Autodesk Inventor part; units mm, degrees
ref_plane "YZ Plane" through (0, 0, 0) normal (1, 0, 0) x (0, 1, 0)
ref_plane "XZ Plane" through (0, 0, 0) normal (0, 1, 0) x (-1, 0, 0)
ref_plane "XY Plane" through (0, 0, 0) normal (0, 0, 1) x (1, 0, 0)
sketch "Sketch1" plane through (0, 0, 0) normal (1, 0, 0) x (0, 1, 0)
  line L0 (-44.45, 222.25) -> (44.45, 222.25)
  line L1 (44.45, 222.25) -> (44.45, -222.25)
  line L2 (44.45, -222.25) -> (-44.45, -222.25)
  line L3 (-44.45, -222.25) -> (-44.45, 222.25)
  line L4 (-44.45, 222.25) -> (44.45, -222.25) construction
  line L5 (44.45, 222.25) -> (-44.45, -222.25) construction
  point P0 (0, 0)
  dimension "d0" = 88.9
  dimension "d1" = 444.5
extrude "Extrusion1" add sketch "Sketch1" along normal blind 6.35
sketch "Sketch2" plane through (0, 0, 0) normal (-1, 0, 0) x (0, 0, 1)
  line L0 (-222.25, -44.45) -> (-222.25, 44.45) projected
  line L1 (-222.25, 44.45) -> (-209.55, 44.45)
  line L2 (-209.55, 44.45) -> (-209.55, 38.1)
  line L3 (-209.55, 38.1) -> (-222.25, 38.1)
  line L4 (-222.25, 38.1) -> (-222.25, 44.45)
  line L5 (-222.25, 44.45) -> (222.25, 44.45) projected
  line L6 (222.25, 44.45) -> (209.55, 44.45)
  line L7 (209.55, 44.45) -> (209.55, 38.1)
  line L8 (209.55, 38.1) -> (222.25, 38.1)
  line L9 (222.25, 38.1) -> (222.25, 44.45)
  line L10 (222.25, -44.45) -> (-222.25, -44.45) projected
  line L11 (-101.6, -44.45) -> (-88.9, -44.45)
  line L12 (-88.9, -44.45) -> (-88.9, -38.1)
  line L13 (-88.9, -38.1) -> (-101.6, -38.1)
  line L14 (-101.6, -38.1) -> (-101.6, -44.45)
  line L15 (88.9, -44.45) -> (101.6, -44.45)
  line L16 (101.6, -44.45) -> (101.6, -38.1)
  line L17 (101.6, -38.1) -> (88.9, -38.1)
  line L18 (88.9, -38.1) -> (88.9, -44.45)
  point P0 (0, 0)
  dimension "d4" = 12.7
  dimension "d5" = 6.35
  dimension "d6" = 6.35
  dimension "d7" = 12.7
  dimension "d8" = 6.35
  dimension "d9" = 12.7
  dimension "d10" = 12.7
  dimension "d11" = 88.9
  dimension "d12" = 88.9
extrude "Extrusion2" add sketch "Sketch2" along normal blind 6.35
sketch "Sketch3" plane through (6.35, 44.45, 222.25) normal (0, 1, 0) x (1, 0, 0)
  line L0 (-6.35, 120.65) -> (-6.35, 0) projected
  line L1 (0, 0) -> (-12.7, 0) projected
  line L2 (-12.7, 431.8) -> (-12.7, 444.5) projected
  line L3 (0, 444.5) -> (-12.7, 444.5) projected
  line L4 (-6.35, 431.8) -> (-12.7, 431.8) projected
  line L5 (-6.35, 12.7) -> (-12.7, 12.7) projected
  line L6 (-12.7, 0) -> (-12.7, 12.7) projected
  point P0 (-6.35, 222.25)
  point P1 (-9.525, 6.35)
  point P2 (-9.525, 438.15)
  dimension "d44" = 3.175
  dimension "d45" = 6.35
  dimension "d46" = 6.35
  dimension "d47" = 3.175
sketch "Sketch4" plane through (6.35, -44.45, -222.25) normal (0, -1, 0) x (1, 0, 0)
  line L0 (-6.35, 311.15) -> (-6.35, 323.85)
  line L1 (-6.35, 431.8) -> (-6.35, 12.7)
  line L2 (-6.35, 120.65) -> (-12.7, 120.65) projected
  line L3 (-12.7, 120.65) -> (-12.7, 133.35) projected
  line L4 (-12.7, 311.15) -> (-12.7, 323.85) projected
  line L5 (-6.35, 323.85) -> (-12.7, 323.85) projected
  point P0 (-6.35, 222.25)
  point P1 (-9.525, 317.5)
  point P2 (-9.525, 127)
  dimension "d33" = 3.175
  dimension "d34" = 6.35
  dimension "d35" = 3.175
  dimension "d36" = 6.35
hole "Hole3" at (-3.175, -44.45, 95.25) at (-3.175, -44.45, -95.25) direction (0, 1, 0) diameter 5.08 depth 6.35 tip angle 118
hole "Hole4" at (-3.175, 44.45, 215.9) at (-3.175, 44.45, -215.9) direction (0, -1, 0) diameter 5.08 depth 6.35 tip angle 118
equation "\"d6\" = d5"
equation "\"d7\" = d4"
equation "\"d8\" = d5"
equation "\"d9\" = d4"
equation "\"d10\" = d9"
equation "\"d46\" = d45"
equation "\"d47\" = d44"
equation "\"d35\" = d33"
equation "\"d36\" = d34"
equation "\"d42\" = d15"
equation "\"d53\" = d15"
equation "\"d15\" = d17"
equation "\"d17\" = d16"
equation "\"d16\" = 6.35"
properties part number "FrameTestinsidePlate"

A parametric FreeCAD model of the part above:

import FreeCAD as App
import Part
import Sketcher
Q = App.Units.Quantity

doc = App.newDocument("Part")
body = doc.addObject("PartDesign::Body", "Body")

# Sketch on YZ plane
sketch1 = body.newObject("Sketcher::SketchObject", "Sketch")
sketch1.AttachmentSupport = (doc.getObject("YZ_Plane"), [""])
sketch1.MapMode = "FlatFace"
sketch1.addGeometry([
    Part.LineSegment(App.Vector(44, 222, 0), App.Vector(-44, 222, 0)),
    Part.LineSegment(App.Vector(-44, 222, 0), App.Vector(-44, -222, 0)),
    Part.LineSegment(App.Vector(-44, -222, 0), App.Vector(44, -222, 0)),
    Part.LineSegment(App.Vector(44, -222, 0), App.Vector(44, 222, 0)),
], False)
sketch1.addConstraint([
    Sketcher.Constraint("Coincident", 0, 2, 1, 1),
    Sketcher.Constraint("Coincident", 1, 2, 2, 1),
    Sketcher.Constraint("Coincident", 2, 2, 3, 1),
    Sketcher.Constraint("Coincident", 3, 2, 0, 1),
    Sketcher.Constraint("Horizontal", 0),
    Sketcher.Constraint("Vertical", 1),
    Sketcher.Constraint("Horizontal", 2),
    Sketcher.Constraint("Vertical", 3),
    Sketcher.Constraint("Symmetric", 0, 2, 2, 2, -1, 1),
    Sketcher.Constraint("DistanceX", 0, 2, 0, 1, Q("3.5 in")),
    Sketcher.Constraint("DistanceY", 1, 2, 1, 1, Q("17.5 in")),
])
pad1 = body.newObject("PartDesign::Pad", "Pad")
pad1.Profile = sketch1
pad1.Length = Q("0.25 in")

# Sketch on YZ plane
sketch2 = body.newObject("Sketcher::SketchObject", "Sketch001")
sketch2.AttachmentSupport = (doc.getObject("YZ_Plane"), [""])
sketch2.MapMode = "FlatFace"
sketch2.addGeometry([
    Part.LineSegment(App.Vector(44, 222, 0), App.Vector(44, 210, 0)),  # 0
    Part.LineSegment(App.Vector(44, 210, 0), App.Vector(38, 210, 0)),  # 1
    Part.LineSegment(App.Vector(38, 210, 0), App.Vector(38, 222, 0)),  # 2
    Part.LineSegment(App.Vector(38, 222, 0), App.Vector(44, 222, 0)),  # 3
    Part.LineSegment(App.Vector(44, -222, 0), App.Vector(38, -222, 0)),  # 4
    Part.LineSegment(App.Vector(38, -222, 0), App.Vector(38, -210, 0)),  # 5
    Part.LineSegment(App.Vector(38, -210, 0), App.Vector(44, -210, 0)),  # 6
    Part.LineSegment(App.Vector(44, -210, 0), App.Vector(44, -222, 0)),  # 7
    Part.LineSegment(App.Vector(-38, 89, 0), App.Vector(-44, 89, 0)),  # 8
    Part.LineSegment(App.Vector(-44, 89, 0), App.Vector(-44, 102, 0)),  # 9
    Part.LineSegment(App.Vector(-44, 102, 0), App.Vector(-38, 102, 0)),  # 10
    Part.LineSegment(App.Vector(-38, 102, 0), App.Vector(-38, 89, 0)),  # 11
    Part.LineSegment(App.Vector(-38, -102, 0), App.Vector(-44, -102, 0)),  # 12
    Part.LineSegment(App.Vector(-44, -102, 0), App.Vector(-44, -89, 0)),  # 13
    Part.LineSegment(App.Vector(-44, -89, 0), App.Vector(-38, -89, 0)),  # 14
    Part.LineSegment(App.Vector(-38, -89, 0), App.Vector(-38, -102, 0)),  # 15
], False)
sketch2.addConstraint([
    Sketcher.Constraint("Coincident", 0, 2, 1, 1),
    Sketcher.Constraint("Coincident", 1, 2, 2, 1),
    Sketcher.Constraint("Coincident", 2, 2, 3, 1),
    Sketcher.Constraint("Coincident", 3, 2, 0, 1),
    Sketcher.Constraint("Coincident", 4, 2, 5, 1),
    Sketcher.Constraint("Coincident", 5, 2, 6, 1),
    Sketcher.Constraint("Coincident", 6, 2, 7, 1),
    Sketcher.Constraint("Coincident", 7, 2, 4, 1),
    Sketcher.Constraint("Coincident", 8, 2, 9, 1),
    Sketcher.Constraint("Coincident", 9, 2, 10, 1),
    Sketcher.Constraint("Coincident", 10, 2, 11, 1),
    Sketcher.Constraint("Coincident", 11, 2, 8, 1),
    Sketcher.Constraint("Coincident", 12, 2, 13, 1),
    Sketcher.Constraint("Coincident", 13, 2, 14, 1),
    Sketcher.Constraint("Coincident", 14, 2, 15, 1),
    Sketcher.Constraint("Coincident", 15, 2, 12, 1),
    Sketcher.Constraint("Vertical", 0),
    Sketcher.Constraint("Horizontal", 1),
    Sketcher.Constraint("Vertical", 2),
    Sketcher.Constraint("Horizontal", 3),
    Sketcher.Constraint("Horizontal", 4),
    Sketcher.Constraint("Vertical", 5),
    Sketcher.Constraint("Horizontal", 6),
    Sketcher.Constraint("Vertical", 7),
    Sketcher.Constraint("Horizontal", 8),
    Sketcher.Constraint("Vertical", 9),
    Sketcher.Constraint("Horizontal", 10),
    Sketcher.Constraint("Vertical", 11),
    Sketcher.Constraint("Horizontal", 12),
    Sketcher.Constraint("Vertical", 13),
    Sketcher.Constraint("Horizontal", 14),
    Sketcher.Constraint("Vertical", 15),
    Sketcher.Constraint("Symmetric", 2, 2, 4, 2, -1),
    Sketcher.Constraint("Symmetric", 0, 2, 6, 2, -1),
    Sketcher.Constraint("Symmetric", 9, 2, 12, 2, -1),
    Sketcher.Constraint("Symmetric", 11, 2, 14, 2, -1),
    Sketcher.Constraint("Equal", 6, 8),
    Sketcher.Constraint("Equal", 7, 9),
    Sketcher.Constraint("DistanceY", 0, 2, 0, 1, Q("0.5 in")),
    Sketcher.Constraint("DistanceX", 1, 2, 1, 1, Q("0.25 in")),
    Sketcher.Constraint("DistanceY", -1, 1, 8, 2, Q("3.5 in")),
    Sketcher.Constraint("DistanceX", 8, 2, 0, 2, Q("3.5 in")),
    Sketcher.Constraint("DistanceY", 4, 2, 1, 2, Q("17 in")),
    Sketcher.Constraint("DistanceX", -1, 1, 1, 2, Q("1.5 in")),
])
pad2 = body.newObject("PartDesign::Pad", "Pad001")
pad2.Profile = sketch2
pad2.Length = Q("0.25 in")
pad2.Reversed = True

# Sketch on XZ plane
sketch3 = body.newObject("Sketcher::SketchObject", "Sketch002")
sketch3.AttachmentSupport = (doc.getObject("XZ_Plane"), [""])
sketch3.MapMode = "FlatFace"
sketch3.AttachmentOffset = App.Placement(App.Vector(0, 0, 1.75 * 25.4), App.Rotation())
sketch3.addGeometry([
    Part.Circle(App.Vector(-3.2, 95.2, 0), App.Vector(0, 0, 1), 2.5),
    Part.Circle(App.Vector(-3.2, -95.2, 0), App.Vector(0, 0, 1), 2.5),
], False)
sketch3.addConstraint([
    Sketcher.Constraint("Equal", 0, 1),
    Sketcher.Constraint("Symmetric", 0, 3, 1, 3, -1),
    Sketcher.Constraint("Diameter", 0, Q("0.2 in")),
    Sketcher.Constraint("DistanceY", 1, 3, 0, 3, Q("7.5 in")),
    Sketcher.Constraint("DistanceX", 0, 3, -1, 1, Q("0.125 in")),
])
doc.recompute()
hole = body.newObject("PartDesign::Hole", "Hole")
hole.Profile = sketch3
hole.ThreadType = "None"
hole.Diameter = Q("0.2 in")
hole.DepthType = "Dimension"
hole.Depth = Q("0.25 in")
hole.DrillPoint = "Angled"
hole.DrillPointAngle = 118

# Sketch on XZ plane
sketch4 = body.newObject("Sketcher::SketchObject", "Sketch003")
sketch4.AttachmentSupport = (doc.getObject("XZ_Plane"), [""])
sketch4.MapMode = "FlatFace"
sketch4.AttachmentOffset = App.Placement(App.Vector(0, 0, -1.75 * 25.4), App.Rotation())
sketch4.addGeometry([
    Part.Circle(App.Vector(-3.2, 215.9, 0), App.Vector(0, 0, 1), 2.5),
    Part.Circle(App.Vector(-3.2, -215.9, 0), App.Vector(0, 0, 1), 2.5),
], False)
sketch4.addConstraint([
    Sketcher.Constraint("Equal", 0, 1),
    Sketcher.Constraint("Symmetric", 0, 3, 1, 3, -1),
    Sketcher.Constraint("Diameter", 0, Q("0.2 in")),
    Sketcher.Constraint("DistanceY", 1, 3, 0, 3, Q("17 in")),
    Sketcher.Constraint("DistanceX", 0, 3, -1, 1, Q("0.125 in")),
])
doc.recompute()
hole2 = body.newObject("PartDesign::Hole", "Hole001")
hole2.Profile = sketch4
hole2.ThreadType = "None"
hole2.Diameter = Q("0.2 in")
hole2.DepthType = "Dimension"
hole2.Depth = Q("0.25 in")
hole2.DrillPoint = "Angled"
hole2.DrillPointAngle = 118
hole2.Reversed = True

doc.recompute()
